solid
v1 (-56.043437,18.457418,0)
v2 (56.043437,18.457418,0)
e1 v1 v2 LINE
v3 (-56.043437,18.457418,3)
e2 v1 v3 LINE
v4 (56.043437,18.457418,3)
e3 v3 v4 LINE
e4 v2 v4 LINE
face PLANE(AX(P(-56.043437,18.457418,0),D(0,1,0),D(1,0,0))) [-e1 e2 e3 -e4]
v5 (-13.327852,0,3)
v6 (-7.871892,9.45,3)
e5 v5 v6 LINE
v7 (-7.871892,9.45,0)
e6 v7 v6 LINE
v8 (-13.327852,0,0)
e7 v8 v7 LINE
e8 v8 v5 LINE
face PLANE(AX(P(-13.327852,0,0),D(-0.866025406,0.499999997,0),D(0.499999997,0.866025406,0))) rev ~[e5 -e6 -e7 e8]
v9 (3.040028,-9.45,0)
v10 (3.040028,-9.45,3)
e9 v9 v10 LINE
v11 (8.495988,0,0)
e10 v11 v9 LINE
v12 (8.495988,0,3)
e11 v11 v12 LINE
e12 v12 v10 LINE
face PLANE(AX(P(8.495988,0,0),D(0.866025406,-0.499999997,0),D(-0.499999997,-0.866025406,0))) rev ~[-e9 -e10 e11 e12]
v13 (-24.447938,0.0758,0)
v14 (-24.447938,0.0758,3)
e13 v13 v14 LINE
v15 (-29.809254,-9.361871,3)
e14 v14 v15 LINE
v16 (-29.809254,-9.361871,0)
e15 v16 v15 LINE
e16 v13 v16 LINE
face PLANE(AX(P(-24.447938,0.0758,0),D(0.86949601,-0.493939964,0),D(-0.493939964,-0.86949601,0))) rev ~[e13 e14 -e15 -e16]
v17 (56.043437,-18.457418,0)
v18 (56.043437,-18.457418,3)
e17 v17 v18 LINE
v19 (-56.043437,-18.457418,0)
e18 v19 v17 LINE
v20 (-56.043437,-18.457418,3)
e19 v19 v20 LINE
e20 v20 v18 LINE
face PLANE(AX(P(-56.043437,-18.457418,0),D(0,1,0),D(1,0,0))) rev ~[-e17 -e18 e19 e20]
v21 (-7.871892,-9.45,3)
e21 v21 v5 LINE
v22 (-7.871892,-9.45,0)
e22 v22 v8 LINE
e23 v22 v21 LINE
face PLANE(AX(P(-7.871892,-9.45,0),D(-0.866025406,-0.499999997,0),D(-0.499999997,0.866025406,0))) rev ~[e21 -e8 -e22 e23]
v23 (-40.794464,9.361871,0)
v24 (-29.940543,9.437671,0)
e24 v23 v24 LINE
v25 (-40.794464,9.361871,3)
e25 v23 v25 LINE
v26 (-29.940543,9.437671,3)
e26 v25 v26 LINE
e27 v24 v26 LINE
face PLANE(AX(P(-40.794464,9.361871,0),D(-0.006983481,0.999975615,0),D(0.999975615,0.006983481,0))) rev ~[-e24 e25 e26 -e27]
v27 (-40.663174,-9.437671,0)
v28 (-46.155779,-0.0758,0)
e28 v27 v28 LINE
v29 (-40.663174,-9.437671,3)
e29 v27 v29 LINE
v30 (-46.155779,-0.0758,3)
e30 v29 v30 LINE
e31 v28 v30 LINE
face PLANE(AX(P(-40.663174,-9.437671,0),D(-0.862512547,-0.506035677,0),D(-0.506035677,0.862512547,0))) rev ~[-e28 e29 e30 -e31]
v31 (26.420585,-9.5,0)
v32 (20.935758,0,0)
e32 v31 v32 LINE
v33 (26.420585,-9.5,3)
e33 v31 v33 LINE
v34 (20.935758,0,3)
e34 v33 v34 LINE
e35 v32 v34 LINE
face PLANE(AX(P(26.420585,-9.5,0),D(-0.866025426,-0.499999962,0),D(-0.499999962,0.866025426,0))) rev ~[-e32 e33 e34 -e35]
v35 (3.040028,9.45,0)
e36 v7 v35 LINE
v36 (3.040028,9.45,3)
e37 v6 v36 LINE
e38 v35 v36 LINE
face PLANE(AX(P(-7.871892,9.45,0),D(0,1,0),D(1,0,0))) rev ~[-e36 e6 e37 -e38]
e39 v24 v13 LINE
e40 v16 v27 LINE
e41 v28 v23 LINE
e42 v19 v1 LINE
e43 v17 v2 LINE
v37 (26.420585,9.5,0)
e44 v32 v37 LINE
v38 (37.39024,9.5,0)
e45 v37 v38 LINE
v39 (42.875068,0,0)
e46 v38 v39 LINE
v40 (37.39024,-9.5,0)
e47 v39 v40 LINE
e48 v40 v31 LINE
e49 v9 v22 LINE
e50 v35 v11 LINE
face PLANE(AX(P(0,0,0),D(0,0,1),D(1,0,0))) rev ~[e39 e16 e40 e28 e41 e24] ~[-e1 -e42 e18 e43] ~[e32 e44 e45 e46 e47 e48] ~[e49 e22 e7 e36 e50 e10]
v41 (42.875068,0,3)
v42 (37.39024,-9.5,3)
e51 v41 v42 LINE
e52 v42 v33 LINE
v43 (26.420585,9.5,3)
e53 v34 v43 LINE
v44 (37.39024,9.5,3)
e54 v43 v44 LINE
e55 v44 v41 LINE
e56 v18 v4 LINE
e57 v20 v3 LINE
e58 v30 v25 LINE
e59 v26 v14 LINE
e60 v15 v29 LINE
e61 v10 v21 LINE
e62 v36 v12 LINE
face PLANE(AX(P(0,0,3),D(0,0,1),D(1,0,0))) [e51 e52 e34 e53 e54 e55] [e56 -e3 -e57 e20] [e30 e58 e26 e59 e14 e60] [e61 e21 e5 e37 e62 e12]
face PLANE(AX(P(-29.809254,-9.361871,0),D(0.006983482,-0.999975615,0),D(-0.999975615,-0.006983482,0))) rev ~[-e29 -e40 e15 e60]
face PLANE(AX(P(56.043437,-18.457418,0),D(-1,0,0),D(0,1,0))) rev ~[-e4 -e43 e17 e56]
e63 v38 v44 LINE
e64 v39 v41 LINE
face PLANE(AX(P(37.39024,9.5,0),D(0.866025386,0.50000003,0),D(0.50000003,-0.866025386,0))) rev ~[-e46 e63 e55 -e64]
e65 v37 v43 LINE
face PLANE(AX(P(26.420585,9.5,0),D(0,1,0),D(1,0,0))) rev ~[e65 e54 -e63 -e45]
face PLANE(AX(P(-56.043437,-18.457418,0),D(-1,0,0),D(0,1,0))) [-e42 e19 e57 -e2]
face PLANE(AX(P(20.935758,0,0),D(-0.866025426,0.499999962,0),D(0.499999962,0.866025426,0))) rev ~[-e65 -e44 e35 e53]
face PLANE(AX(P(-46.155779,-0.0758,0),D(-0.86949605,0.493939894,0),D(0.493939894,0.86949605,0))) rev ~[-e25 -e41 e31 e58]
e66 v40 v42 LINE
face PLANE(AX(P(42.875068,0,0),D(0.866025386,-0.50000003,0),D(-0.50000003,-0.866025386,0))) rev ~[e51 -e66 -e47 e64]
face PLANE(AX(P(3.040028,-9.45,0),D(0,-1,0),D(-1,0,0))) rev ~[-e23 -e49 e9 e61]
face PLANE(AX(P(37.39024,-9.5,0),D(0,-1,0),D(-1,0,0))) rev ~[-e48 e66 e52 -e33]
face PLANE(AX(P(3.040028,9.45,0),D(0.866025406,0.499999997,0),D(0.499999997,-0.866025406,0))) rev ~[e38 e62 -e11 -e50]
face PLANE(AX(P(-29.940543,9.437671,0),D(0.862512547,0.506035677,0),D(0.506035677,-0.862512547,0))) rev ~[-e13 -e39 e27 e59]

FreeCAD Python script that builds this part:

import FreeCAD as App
import Part
import Sketcher
from FreeCAD import Vector
Q = App.Units.Quantity


def add_polygon(sketch, points):
    """Adds a closed chain of lines whose ends are joined by coincident constraints."""
    first, n = sketch.GeometryCount, len(points)
    for a, b in zip(points, points[1:] + points[:1]):
        sketch.addGeometry(Part.LineSegment(App.Vector(*a, 0), App.Vector(*b, 0)), False)
    for i in range(n):
        sketch.addConstraint(Sketcher.Constraint("Coincident", first + i, 2, first + (i + 1) % n, 1))

doc = App.newDocument("Part")
body = doc.addObject("PartDesign::Body", "Body")

sketch1 = body.newObject("Sketcher::SketchObject", "Sketch")
sketch1.AttachmentSupport = (doc.getObject("XY_Plane"), [""])
sketch1.MapMode = "FlatFace"
add_polygon(sketch1, [(-56.043437, 18.457418), (-56.043437, -18.457418), (56.043437, -18.457418), (56.043437, 18.457418)])
add_polygon(sketch1, [(-46.155779, -0.0758), (-40.794464, 9.361871), (-29.940543, 9.437671), (-24.447938, 0.0758), (-29.809254, -9.361871), (-40.663174, -9.437671)])
add_polygon(sketch1, [(3.040028, 9.45), (8.495988, 0), (3.040028, -9.45), (-7.871892, -9.45), (-13.327852, 0), (-7.871892, 9.45)])
add_polygon(sketch1, [(37.39024, 9.5), (42.875068, 0), (37.39024, -9.5), (26.420585, -9.5), (20.935758, 0), (26.420585, 9.5)])
sketch1.addConstraint([
    Sketcher.Constraint("Vertical", 0),
    Sketcher.Constraint("Horizontal", 1),
    Sketcher.Constraint("Vertical", 2),
    Sketcher.Constraint("Horizontal", 3),
    Sketcher.Constraint("Horizontal", 12),
    Sketcher.Constraint("Horizontal", 15),
    Sketcher.Constraint("Horizontal", 18),
    Sketcher.Constraint("Horizontal", 21),
    Sketcher.Constraint("Symmetric", 0, 2, 2, 2, -1, 1),
    Sketcher.Constraint("Symmetric", 12, 2, 14, 2, -1),
    Sketcher.Constraint("Symmetric", 18, 2, 20, 2, -1),
    Sketcher.Constraint("PointOnObject", 10, 2, -1),
    Sketcher.Constraint("PointOnObject", 13, 2, -1),
    Sketcher.Constraint("PointOnObject", 16, 2, -1),
    Sketcher.Constraint("PointOnObject", 19, 2, -1),
    Sketcher.Constraint("Parallel", 4, 7),
    Sketcher.Constraint("Parallel", 5, 8),
    Sketcher.Constraint("Parallel", 6, 9),
    Sketcher.Constraint("Parallel", 10, 13),
    Sketcher.Constraint("Parallel", 11, 14),
    Sketcher.Constraint("Parallel", 13, 16),
    Sketcher.Constraint("Parallel", 14, 17),
    Sketcher.Constraint("Parallel", 16, 19),
    Sketcher.Constraint("Equal", 4, 5),
    Sketcher.Constraint("Equal", 5, 6),
    Sketcher.Constraint("Equal", 6, 7),
    Sketcher.Constraint("Angle", 10, Q("-60 deg")),
    Sketcher.Constraint("DistanceY", 18, 2, 20, 2, 19.0),
    Sketcher.Constraint("DistanceY", 12, 2, 14, 2, 18.9),
    Sketcher.Constraint("DistanceX", 12, 2, 12, 1, 10.91192),
    Sketcher.Constraint("DistanceY", -1, 1, 6, 2, 0.0758),
    Sketcher.Constraint("DistanceY", 9, 2, -1, 1, 0.0758),
    Sketcher.Constraint("DistanceX", 4, 2, 2, 2, 96.837901),
    Sketcher.Constraint("DistanceY", 4, 2, 5, 2, 0.0758),
    Sketcher.Constraint("DistanceX", 3, 2, 6, 2, 31.595499),
    Sketcher.Constraint("DistanceX", 8, 2, 11, 2, 43.703202),
    Sketcher.Constraint("DistanceX", 7, 2, 13, 2, 16.481402),
    Sketcher.Constraint("DistanceX", 1, 1, 1, 2, 112.086874),
    Sketcher.Constraint("DistanceX", 18, 2, 18, 1, 10.969655),
    Sketcher.Constraint("DistanceY", 0, 2, 0, 1, 36.914836),
    Sketcher.Constraint("DistanceX", -1, 1, 17, 2, 37.39024),
])
pad1 = body.newObject("PartDesign::Pad", "Pad")
pad1.Profile = sketch1
pad1.Length = 3

doc.recompute()
